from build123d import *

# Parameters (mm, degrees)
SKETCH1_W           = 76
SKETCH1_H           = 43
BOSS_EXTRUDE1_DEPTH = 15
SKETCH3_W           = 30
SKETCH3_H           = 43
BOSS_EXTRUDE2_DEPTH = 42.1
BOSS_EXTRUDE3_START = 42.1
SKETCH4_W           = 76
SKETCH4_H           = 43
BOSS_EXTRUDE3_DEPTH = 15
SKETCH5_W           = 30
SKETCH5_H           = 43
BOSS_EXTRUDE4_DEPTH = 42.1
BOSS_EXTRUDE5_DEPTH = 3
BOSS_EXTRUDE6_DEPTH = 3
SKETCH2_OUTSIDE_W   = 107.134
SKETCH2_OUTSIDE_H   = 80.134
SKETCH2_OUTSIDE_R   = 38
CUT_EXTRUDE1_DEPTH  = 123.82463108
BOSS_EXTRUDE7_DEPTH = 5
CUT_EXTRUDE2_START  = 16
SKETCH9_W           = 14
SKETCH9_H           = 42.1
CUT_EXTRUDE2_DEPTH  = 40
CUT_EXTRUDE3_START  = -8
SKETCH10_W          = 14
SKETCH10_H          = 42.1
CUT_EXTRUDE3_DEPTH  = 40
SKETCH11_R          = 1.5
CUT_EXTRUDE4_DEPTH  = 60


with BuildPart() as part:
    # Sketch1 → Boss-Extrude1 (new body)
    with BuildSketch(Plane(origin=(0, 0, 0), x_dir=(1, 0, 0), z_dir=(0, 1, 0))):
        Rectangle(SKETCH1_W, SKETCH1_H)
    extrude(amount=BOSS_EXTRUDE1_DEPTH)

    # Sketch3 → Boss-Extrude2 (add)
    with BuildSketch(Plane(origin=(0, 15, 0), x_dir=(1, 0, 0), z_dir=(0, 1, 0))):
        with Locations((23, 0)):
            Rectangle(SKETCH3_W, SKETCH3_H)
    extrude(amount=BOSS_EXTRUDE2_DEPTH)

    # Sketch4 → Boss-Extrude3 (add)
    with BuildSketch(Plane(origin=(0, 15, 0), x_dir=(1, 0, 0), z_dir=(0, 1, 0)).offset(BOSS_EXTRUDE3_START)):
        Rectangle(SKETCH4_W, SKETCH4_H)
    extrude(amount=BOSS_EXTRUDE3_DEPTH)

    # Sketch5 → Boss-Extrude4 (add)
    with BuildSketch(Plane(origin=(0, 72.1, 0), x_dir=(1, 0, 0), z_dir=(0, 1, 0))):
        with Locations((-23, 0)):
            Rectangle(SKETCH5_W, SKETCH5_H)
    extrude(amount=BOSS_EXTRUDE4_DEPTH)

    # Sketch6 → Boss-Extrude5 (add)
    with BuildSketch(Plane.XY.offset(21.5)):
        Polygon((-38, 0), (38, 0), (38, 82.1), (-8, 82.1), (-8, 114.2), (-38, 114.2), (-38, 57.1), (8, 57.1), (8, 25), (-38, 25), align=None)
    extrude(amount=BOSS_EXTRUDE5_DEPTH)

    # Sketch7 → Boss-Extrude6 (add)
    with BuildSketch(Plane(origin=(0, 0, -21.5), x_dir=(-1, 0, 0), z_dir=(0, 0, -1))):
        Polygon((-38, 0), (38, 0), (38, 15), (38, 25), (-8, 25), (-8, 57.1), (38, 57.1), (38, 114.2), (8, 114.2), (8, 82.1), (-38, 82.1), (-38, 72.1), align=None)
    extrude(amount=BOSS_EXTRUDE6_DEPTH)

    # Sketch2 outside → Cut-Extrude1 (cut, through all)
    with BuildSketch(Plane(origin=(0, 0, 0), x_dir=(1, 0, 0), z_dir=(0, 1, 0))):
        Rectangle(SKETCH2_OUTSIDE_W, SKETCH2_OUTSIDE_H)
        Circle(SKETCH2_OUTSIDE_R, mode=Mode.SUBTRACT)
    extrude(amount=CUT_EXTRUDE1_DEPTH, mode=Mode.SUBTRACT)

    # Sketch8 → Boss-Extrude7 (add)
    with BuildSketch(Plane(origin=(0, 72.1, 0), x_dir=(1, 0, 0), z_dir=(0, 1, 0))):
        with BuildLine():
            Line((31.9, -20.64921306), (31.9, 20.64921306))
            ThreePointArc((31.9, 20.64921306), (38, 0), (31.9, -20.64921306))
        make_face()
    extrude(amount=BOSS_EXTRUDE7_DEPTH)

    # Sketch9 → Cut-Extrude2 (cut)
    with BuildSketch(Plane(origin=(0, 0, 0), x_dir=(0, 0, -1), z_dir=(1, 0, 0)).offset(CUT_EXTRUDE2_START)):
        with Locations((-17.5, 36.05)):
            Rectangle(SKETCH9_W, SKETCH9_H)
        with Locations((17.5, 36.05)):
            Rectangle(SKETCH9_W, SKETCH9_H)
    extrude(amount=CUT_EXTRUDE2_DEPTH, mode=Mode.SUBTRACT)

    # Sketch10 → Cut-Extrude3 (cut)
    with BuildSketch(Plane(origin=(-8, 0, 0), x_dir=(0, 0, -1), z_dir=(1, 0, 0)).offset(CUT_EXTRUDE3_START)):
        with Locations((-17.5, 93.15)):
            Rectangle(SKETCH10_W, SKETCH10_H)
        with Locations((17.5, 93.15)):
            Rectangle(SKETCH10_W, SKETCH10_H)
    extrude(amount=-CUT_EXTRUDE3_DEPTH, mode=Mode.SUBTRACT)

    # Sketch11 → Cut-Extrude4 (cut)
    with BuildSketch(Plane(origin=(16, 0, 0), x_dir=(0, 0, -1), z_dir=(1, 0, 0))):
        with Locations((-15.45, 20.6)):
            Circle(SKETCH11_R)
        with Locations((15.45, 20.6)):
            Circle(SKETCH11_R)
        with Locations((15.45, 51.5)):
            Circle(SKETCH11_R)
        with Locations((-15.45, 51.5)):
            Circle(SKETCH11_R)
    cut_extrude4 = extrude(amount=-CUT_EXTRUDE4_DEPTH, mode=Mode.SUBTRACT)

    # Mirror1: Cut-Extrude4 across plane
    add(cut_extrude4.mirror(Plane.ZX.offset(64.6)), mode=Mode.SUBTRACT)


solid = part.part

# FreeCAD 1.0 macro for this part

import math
import FreeCAD as App
import Part
import Sketcher
Q = App.Units.Quantity

doc = App.newDocument("Part")
body = doc.addObject("PartDesign::Body", "Body")

# Sketch on XZ plane
sketch1 = doc.addObject("Sketcher::SketchObject", "Sketch")
body.addObject(sketch1)
sketch1.AttachmentSupport = (doc.XZ_Plane, [""])
sketch1.MapMode = "FlatFace"
sketch1.addGeometry([
    Part.LineSegment(App.Vector(-38, -22, 0), App.Vector(-38, 22, 0)),
    Part.LineSegment(App.Vector(-38, 22, 0), App.Vector(38, 22, 0)),
    Part.LineSegment(App.Vector(38, 22, 0), App.Vector(38, -22, 0)),
    Part.LineSegment(App.Vector(38, -22, 0), App.Vector(-38, -22, 0)),
], False)
sketch1.addConstraint([
    Sketcher.Constraint("Coincident", 0, 2, 1, 1),
    Sketcher.Constraint("Coincident", 1, 2, 2, 1),
    Sketcher.Constraint("Coincident", 2, 2, 3, 1),
    Sketcher.Constraint("Coincident", 3, 2, 0, 1),
    Sketcher.Constraint("Vertical", 0),
    Sketcher.Constraint("Horizontal", 1),
    Sketcher.Constraint("Vertical", 2),
    Sketcher.Constraint("Horizontal", 3),
    Sketcher.Constraint("Symmetric", 0, 2, 2, 2, -1, 1),
    Sketcher.Constraint("DistanceX", 1, 1, 1, 2, Q("76 mm")),
    Sketcher.Constraint("DistanceY", 0, 1, 0, 2, Q("43 mm")),
])
pad1 = doc.addObject("PartDesign::Pad", "Pad")
body.addObject(pad1)
pad1.Profile = sketch1
pad1.Length = 15
pad1.Reversed = True

# Sketch on XZ plane
sketch2 = doc.addObject("Sketcher::SketchObject", "Sketch001")
body.addObject(sketch2)
sketch2.AttachmentSupport = (doc.XZ_Plane, [""])
sketch2.MapMode = "FlatFace"
sketch2.AttachmentOffset = App.Placement(App.Vector(0, 0, -15), App.Rotation())
sketch2.addGeometry([
    Part.LineSegment(App.Vector(8, -22, 0), App.Vector(8, 22, 0)),
    Part.LineSegment(App.Vector(8, 22, 0), App.Vector(38, 22, 0)),
    Part.LineSegment(App.Vector(38, 22, 0), App.Vector(38, -22, 0)),
    Part.LineSegment(App.Vector(38, -22, 0), App.Vector(8, -22, 0)),
], False)
sketch2.addConstraint([
    Sketcher.Constraint("Coincident", 0, 2, 1, 1),
    Sketcher.Constraint("Coincident", 1, 2, 2, 1),
    Sketcher.Constraint("Coincident", 2, 2, 3, 1),
    Sketcher.Constraint("Coincident", 3, 2, 0, 1),
    Sketcher.Constraint("Vertical", 0),
    Sketcher.Constraint("Horizontal", 1),
    Sketcher.Constraint("Vertical", 2),
    Sketcher.Constraint("Horizontal", 3),
    Sketcher.Constraint("DistanceX", 1, 1, 1, 2, Q("30 mm")),
    Sketcher.Constraint("DistanceY", 0, 1, 0, 2, Q("43 mm")),
    Sketcher.Constraint("DistanceX", -1, 1, 0, 2, Q("8 mm")),
    Sketcher.Constraint("DistanceY", -1, 1, 0, 2, Q("21.5 mm")),
])
pad2 = doc.addObject("PartDesign::Pad", "Pad001")
body.addObject(pad2)
pad2.Profile = sketch2
pad2.Length = 42.1
pad2.Reversed = True

# Sketch on XZ plane
sketch3 = doc.addObject("Sketcher::SketchObject", "Sketch002")
body.addObject(sketch3)
sketch3.AttachmentSupport = (doc.XZ_Plane, [""])
sketch3.MapMode = "FlatFace"
sketch3.AttachmentOffset = App.Placement(App.Vector(0, 0, -57.1), App.Rotation())
sketch3.addGeometry([
    Part.LineSegment(App.Vector(-38, -22, 0), App.Vector(-38, 22, 0)),
    Part.LineSegment(App.Vector(-38, 22, 0), App.Vector(38, 22, 0)),
    Part.LineSegment(App.Vector(38, 22, 0), App.Vector(38, -22, 0)),
    Part.LineSegment(App.Vector(38, -22, 0), App.Vector(-38, -22, 0)),
], False)
sketch3.addConstraint([
    Sketcher.Constraint("Coincident", 0, 2, 1, 1),
    Sketcher.Constraint("Coincident", 1, 2, 2, 1),
    Sketcher.Constraint("Coincident", 2, 2, 3, 1),
    Sketcher.Constraint("Coincident", 3, 2, 0, 1),
    Sketcher.Constraint("Vertical", 0),
    Sketcher.Constraint("Horizontal", 1),
    Sketcher.Constraint("Vertical", 2),
    Sketcher.Constraint("Horizontal", 3),
    Sketcher.Constraint("Symmetric", 0, 2, 2, 2, -1, 1),
    Sketcher.Constraint("DistanceX", 1, 1, 1, 2, Q("76 mm")),
    Sketcher.Constraint("DistanceY", 0, 1, 0, 2, Q("43 mm")),
])
pad3 = doc.addObject("PartDesign::Pad", "Pad002")
body.addObject(pad3)
pad3.Profile = sketch3
pad3.Length = 15
pad3.Reversed = True

# Sketch on XZ plane
sketch4 = doc.addObject("Sketcher::SketchObject", "Sketch003")
body.addObject(sketch4)
sketch4.AttachmentSupport = (doc.XZ_Plane, [""])
sketch4.MapMode = "FlatFace"
sketch4.AttachmentOffset = App.Placement(App.Vector(0, 0, -72.1), App.Rotation())
sketch4.addGeometry([
    Part.LineSegment(App.Vector(-38, -22, 0), App.Vector(-38, 22, 0)),
    Part.LineSegment(App.Vector(-38, 22, 0), App.Vector(-8, 22, 0)),
    Part.LineSegment(App.Vector(-8, 22, 0), App.Vector(-8, -22, 0)),
    Part.LineSegment(App.Vector(-8, -22, 0), App.Vector(-38, -22, 0)),
], False)
sketch4.addConstraint([
    Sketcher.Constraint("Coincident", 0, 2, 1, 1),
    Sketcher.Constraint("Coincident", 1, 2, 2, 1),
    Sketcher.Constraint("Coincident", 2, 2, 3, 1),
    Sketcher.Constraint("Coincident", 3, 2, 0, 1),
    Sketcher.Constraint("Vertical", 0),
    Sketcher.Constraint("Horizontal", 1),
    Sketcher.Constraint("Vertical", 2),
    Sketcher.Constraint("Horizontal", 3),
    Sketcher.Constraint("DistanceX", 1, 1, 1, 2, Q("30 mm")),
    Sketcher.Constraint("DistanceY", 0, 1, 0, 2, Q("43 mm")),
    Sketcher.Constraint("DistanceX", 0, 2, -1, 1, Q("38 mm")),
    Sketcher.Constraint("DistanceY", -1, 1, 0, 2, Q("21.5 mm")),
])
pad4 = doc.addObject("PartDesign::Pad", "Pad003")
body.addObject(pad4)
pad4.Profile = sketch4
pad4.Length = 42.1
pad4.Reversed = True

# Sketch on XY plane
sketch5 = doc.addObject("Sketcher::SketchObject", "Sketch004")
body.addObject(sketch5)
sketch5.AttachmentSupport = (doc.XY_Plane, [""])
sketch5.MapMode = "FlatFace"
sketch5.AttachmentOffset = App.Placement(App.Vector(0, 0, 21.5), App.Rotation())
sketch5.addGeometry([
    Part.LineSegment(App.Vector(-38, 0, 0), App.Vector(38, 0, 0)),  # 0
    Part.LineSegment(App.Vector(38, 0, 0), App.Vector(38, 82, 0)),  # 1
    Part.LineSegment(App.Vector(38, 82, 0), App.Vector(-8, 82, 0)),  # 2
    Part.LineSegment(App.Vector(-8, 82, 0), App.Vector(-8, 114, 0)),  # 3
    Part.LineSegment(App.Vector(-8, 114, 0), App.Vector(-38, 114, 0)),  # 4
    Part.LineSegment(App.Vector(-38, 114, 0), App.Vector(-38, 57, 0)),  # 5
    Part.LineSegment(App.Vector(-38, 57, 0), App.Vector(8, 57, 0)),  # 6
    Part.LineSegment(App.Vector(8, 57, 0), App.Vector(8, 25, 0)),  # 7
    Part.LineSegment(App.Vector(8, 25, 0), App.Vector(-38, 25, 0)),  # 8
    Part.LineSegment(App.Vector(-38, 25, 0), App.Vector(-38, 0, 0)),  # 9
], False)
sketch5.addConstraint([
    Sketcher.Constraint("Coincident", 0, 2, 1, 1),
    Sketcher.Constraint("Coincident", 1, 2, 2, 1),
    Sketcher.Constraint("Coincident", 2, 2, 3, 1),
    Sketcher.Constraint("Coincident", 3, 2, 4, 1),
    Sketcher.Constraint("Coincident", 4, 2, 5, 1),
    Sketcher.Constraint("Coincident", 5, 2, 6, 1),
    Sketcher.Constraint("Coincident", 6, 2, 7, 1),
    Sketcher.Constraint("Coincident", 7, 2, 8, 1),
    Sketcher.Constraint("Coincident", 8, 2, 9, 1),
    Sketcher.Constraint("Coincident", 9, 2, 0, 1),
    Sketcher.Constraint("Horizontal", 0),
    Sketcher.Constraint("Vertical", 1),
    Sketcher.Constraint("Horizontal", 2),
    Sketcher.Constraint("Vertical", 3),
    Sketcher.Constraint("Horizontal", 4),
    Sketcher.Constraint("Vertical", 5),
    Sketcher.Constraint("Horizontal", 6),
    Sketcher.Constraint("Vertical", 7),
    Sketcher.Constraint("Horizontal", 8),
    Sketcher.Constraint("Vertical", 9),
    Sketcher.Constraint("Symmetric", 0, 2, 9, 2, -1, 1),
    Sketcher.Constraint("Vertical", 5, 2, 8, 2),
    Sketcher.Constraint("Equal", 2, 6),
    Sketcher.Constraint("Equal", 3, 7),
    Sketcher.Constraint("DistanceX", 0, 1, 0, 2, Q("76 mm")),
    Sketcher.Constraint("DistanceX", 2, 2, 2, 1, Q("46 mm")),
    Sketcher.Constraint("DistanceY", 9, 2, 9, 1, Q("25 mm")),
    Sketcher.Constraint("DistanceY", 1, 1, 1, 2, Q("82.1 mm")),
    Sketcher.Constraint("DistanceY", 3, 1, 3, 2, Q("32.1 mm")),
])
pad5 = doc.addObject("PartDesign::Pad", "Pad004")
body.addObject(pad5)
pad5.Profile = sketch5
pad5.Length = 3

# Sketch on XY plane
sketch6 = doc.addObject("Sketcher::SketchObject", "Sketch005")
body.addObject(sketch6)
sketch6.AttachmentSupport = (doc.XY_Plane, [""])
sketch6.MapMode = "FlatFace"
sketch6.AttachmentOffset = App.Placement(App.Vector(0, 0, -21.5), App.Rotation())
sketch6.addGeometry([
    Part.LineSegment(App.Vector(38, 0, 0), App.Vector(-38, 0, 0)),  # 0
    Part.LineSegment(App.Vector(-38, 0, 0), App.Vector(-38, 25, 0)),  # 1
    Part.LineSegment(App.Vector(-38, 25, 0), App.Vector(8, 25, 0)),  # 2
    Part.LineSegment(App.Vector(8, 25, 0), App.Vector(8, 57, 0)),  # 3
    Part.LineSegment(App.Vector(8, 57, 0), App.Vector(-38, 57, 0)),  # 4
    Part.LineSegment(App.Vector(-38, 57, 0), App.Vector(-38, 114, 0)),  # 5
    Part.LineSegment(App.Vector(-38, 114, 0), App.Vector(-8, 114, 0)),  # 6
    Part.LineSegment(App.Vector(-8, 114, 0), App.Vector(-8, 82, 0)),  # 7
    Part.LineSegment(App.Vector(-8, 82, 0), App.Vector(38, 82, 0)),  # 8
    Part.LineSegment(App.Vector(38, 82, 0), App.Vector(38, 0, 0)),  # 9
], False)
sketch6.addConstraint([
    Sketcher.Constraint("Coincident", 0, 2, 1, 1),
    Sketcher.Constraint("Coincident", 1, 2, 2, 1),
    Sketcher.Constraint("Coincident", 2, 2, 3, 1),
    Sketcher.Constraint("Coincident", 3, 2, 4, 1),
    Sketcher.Constraint("Coincident", 4, 2, 5, 1),
    Sketcher.Constraint("Coincident", 5, 2, 6, 1),
    Sketcher.Constraint("Coincident", 6, 2, 7, 1),
    Sketcher.Constraint("Coincident", 7, 2, 8, 1),
    Sketcher.Constraint("Coincident", 8, 2, 9, 1),
    Sketcher.Constraint("Coincident", 9, 2, 0, 1),
    Sketcher.Constraint("Horizontal", 0),
    Sketcher.Constraint("Vertical", 1),
    Sketcher.Constraint("Horizontal", 2),
    Sketcher.Constraint("Vertical", 3),
    Sketcher.Constraint("Horizontal", 4),
    Sketcher.Constraint("Vertical", 5),
    Sketcher.Constraint("Horizontal", 6),
    Sketcher.Constraint("Vertical", 7),
    Sketcher.Constraint("Horizontal", 8),
    Sketcher.Constraint("Vertical", 9),
    Sketcher.Constraint("Symmetric", 0, 2, 9, 2, -1, 1),
    Sketcher.Constraint("Vertical", 1, 2, 4, 2),
    Sketcher.Constraint("Equal", 4, 8),
    Sketcher.Constraint("Equal", 3, 7),
    Sketcher.Constraint("DistanceX", 0, 2, 0, 1, Q("76 mm")),
    Sketcher.Constraint("DistanceX", 2, 1, 2, 2, Q("46 mm")),
    Sketcher.Constraint("DistanceY", 1, 1, 1, 2, Q("25 mm")),
    Sketcher.Constraint("DistanceY", 3, 1, 3, 2, Q("32.1 mm")),
    Sketcher.Constraint("DistanceY", 5, 1, 5, 2, Q("57.1 mm")),
])
pad6 = doc.addObject("PartDesign::Pad", "Pad005")
body.addObject(pad6)
pad6.Profile = sketch6
pad6.Length = 3
pad6.Reversed = True

# Sketch on XZ plane
sketch7 = doc.addObject("Sketcher::SketchObject", "Sketch006")
body.addObject(sketch7)
sketch7.AttachmentSupport = (doc.XZ_Plane, [""])
sketch7.MapMode = "FlatFace"
sketch7.addGeometry([
    Part.LineSegment(App.Vector(-54, -40, 0), App.Vector(-54, 40, 0)),  # 0
    Part.LineSegment(App.Vector(-54, 40, 0), App.Vector(54, 40, 0)),  # 1
    Part.LineSegment(App.Vector(54, 40, 0), App.Vector(54, -40, 0)),  # 2
    Part.LineSegment(App.Vector(54, -40, 0), App.Vector(-54, -40, 0)),  # 3
    Part.Circle(App.Vector(0, 0, 0), App.Vector(0, 0, 1), 38),  # 4
], False)
sketch7.addConstraint([
    Sketcher.Constraint("Coincident", 0, 2, 1, 1),
    Sketcher.Constraint("Coincident", 1, 2, 2, 1),
    Sketcher.Constraint("Coincident", 2, 2, 3, 1),
    Sketcher.Constraint("Coincident", 3, 2, 0, 1),
    Sketcher.Constraint("Vertical", 0),
    Sketcher.Constraint("Horizontal", 1),
    Sketcher.Constraint("Vertical", 2),
    Sketcher.Constraint("Horizontal", 3),
    Sketcher.Constraint("Coincident", 4, 3, -1, 1),
    Sketcher.Constraint("Symmetric", 0, 2, 2, 2, -1, 1),
    Sketcher.Constraint("Diameter", 4, Q("76 mm")),
    Sketcher.Constraint("DistanceX", 1, 1, 1, 2, Q("107.134 mm")),
    Sketcher.Constraint("DistanceY", 0, 1, 0, 2, Q("80.134 mm")),
])
pocket1 = doc.addObject("PartDesign::Pocket", "Pocket")
body.addObject(pocket1)
pocket1.Profile = sketch7
pocket1.Type = "ThroughAll"

# Sketch on XZ plane
sketch8 = doc.addObject("Sketcher::SketchObject", "Sketch007")
body.addObject(sketch8)
sketch8.AttachmentSupport = (doc.XZ_Plane, [""])
sketch8.MapMode = "FlatFace"
sketch8.AttachmentOffset = App.Placement(App.Vector(0, 0, -72.1), App.Rotation())
sketch8.addGeometry([
    Part.LineSegment(App.Vector(32, -21, 0), App.Vector(32, 21, 0)),
    Part.ArcOfCircle(Part.Circle(App.Vector(0, 0, 0), App.Vector(0, 0, 1), 38), math.radians(-33), math.radians(33)),
], False)
sketch8.addConstraint([
    Sketcher.Constraint("Coincident", 0, 1, 1, 1),
    Sketcher.Constraint("Coincident", 1, 2, 0, 2),
    Sketcher.Constraint("Vertical", 0),
    Sketcher.Constraint("Coincident", 1, 3, -1, 1),
    Sketcher.Constraint("Radius", 1, Q("38 mm")),
    Sketcher.Constraint("DistanceX", -1, 1, 0, 1, Q("31.9 mm")),
])
pad7 = doc.addObject("PartDesign::Pad", "Pad006")
body.addObject(pad7)
pad7.Profile = sketch8
pad7.Length = 5
pad7.Reversed = True

# Sketch on YZ plane
sketch9 = doc.addObject("Sketcher::SketchObject", "Sketch008")
body.addObject(sketch9)
sketch9.AttachmentSupport = (doc.YZ_Plane, [""])
sketch9.MapMode = "FlatFace"
sketch9.AttachmentOffset = App.Placement(App.Vector(0, 0, 16), App.Rotation())
sketch9.addGeometry([
    Part.LineSegment(App.Vector(57, 24, 0), App.Vector(15, 24, 0)),  # 0
    Part.LineSegment(App.Vector(15, 24, 0), App.Vector(15, 10, 0)),  # 1
    Part.LineSegment(App.Vector(15, 10, 0), App.Vector(57, 10, 0)),  # 2
    Part.LineSegment(App.Vector(57, 10, 0), App.Vector(57, 24, 0)),  # 3
    Part.LineSegment(App.Vector(57, -10, 0), App.Vector(15, -10, 0)),  # 4
    Part.LineSegment(App.Vector(15, -10, 0), App.Vector(15, -24, 0)),  # 5
    Part.LineSegment(App.Vector(15, -24, 0), App.Vector(57, -24, 0)),  # 6
    Part.LineSegment(App.Vector(57, -24, 0), App.Vector(57, -10, 0)),  # 7
], False)
sketch9.addConstraint([
    Sketcher.Constraint("Coincident", 0, 2, 1, 1),
    Sketcher.Constraint("Coincident", 1, 2, 2, 1),
    Sketcher.Constraint("Coincident", 2, 2, 3, 1),
    Sketcher.Constraint("Coincident", 3, 2, 0, 1),
    Sketcher.Constraint("Coincident", 4, 2, 5, 1),
    Sketcher.Constraint("Coincident", 5, 2, 6, 1),
    Sketcher.Constraint("Coincident", 6, 2, 7, 1),
    Sketcher.Constraint("Coincident", 7, 2, 4, 1),
    Sketcher.Constraint("Horizontal", 0),
    Sketcher.Constraint("Vertical", 1),
    Sketcher.Constraint("Horizontal", 2),
    Sketcher.Constraint("Vertical", 3),
    Sketcher.Constraint("Horizontal", 4),
    Sketcher.Constraint("Vertical", 5),
    Sketcher.Constraint("Horizontal", 6),
    Sketcher.Constraint("Vertical", 7),
    Sketcher.Constraint("Symmetric", 1, 2, 4, 2, -1),
    Sketcher.Constraint("Symmetric", 3, 2, 6, 2, -1),
    Sketcher.Constraint("DistanceY", 1, 2, 1, 1, Q("14 mm")),
    Sketcher.Constraint("DistanceX", 0, 2, 0, 1, Q("42.1 mm")),
    Sketcher.Constraint("DistanceX", -1, 1, 0, 2, Q("15 mm")),
    Sketcher.Constraint("DistanceY", 4, 2, 1, 2, Q("21 mm")),
])
pocket2 = doc.addObject("PartDesign::Pocket", "Pocket001")
body.addObject(pocket2)
pocket2.Profile = sketch9
pocket2.Length = 40
pocket2.Reversed = True

# Sketch on YZ plane
sketch10 = doc.addObject("Sketcher::SketchObject", "Sketch009")
body.addObject(sketch10)
sketch10.AttachmentSupport = (doc.YZ_Plane, [""])
sketch10.MapMode = "FlatFace"
sketch10.AttachmentOffset = App.Placement(App.Vector(0, 0, -16), App.Rotation())
sketch10.addGeometry([
    Part.LineSegment(App.Vector(114, 24, 0), App.Vector(72, 24, 0)),  # 0
    Part.LineSegment(App.Vector(72, 24, 0), App.Vector(72, 10, 0)),  # 1
    Part.LineSegment(App.Vector(72, 10, 0), App.Vector(114, 10, 0)),  # 2
    Part.LineSegment(App.Vector(114, 10, 0), App.Vector(114, 24, 0)),  # 3
    Part.LineSegment(App.Vector(114, -10, 0), App.Vector(72, -10, 0)),  # 4
    Part.LineSegment(App.Vector(72, -10, 0), App.Vector(72, -24, 0)),  # 5
    Part.LineSegment(App.Vector(72, -24, 0), App.Vector(114, -24, 0)),  # 6
    Part.LineSegment(App.Vector(114, -24, 0), App.Vector(114, -10, 0)),  # 7
], False)
sketch10.addConstraint([
    Sketcher.Constraint("Coincident", 0, 2, 1, 1),
    Sketcher.Constraint("Coincident", 1, 2, 2, 1),
    Sketcher.Constraint("Coincident", 2, 2, 3, 1),
    Sketcher.Constraint("Coincident", 3, 2, 0, 1),
    Sketcher.Constraint("Coincident", 4, 2, 5, 1),
    Sketcher.Constraint("Coincident", 5, 2, 6, 1),
    Sketcher.Constraint("Coincident", 6, 2, 7, 1),
    Sketcher.Constraint("Coincident", 7, 2, 4, 1),
    Sketcher.Constraint("Horizontal", 0),
    Sketcher.Constraint("Vertical", 1),
    Sketcher.Constraint("Horizontal", 2),
    Sketcher.Constraint("Vertical", 3),
    Sketcher.Constraint("Horizontal", 4),
    Sketcher.Constraint("Vertical", 5),
    Sketcher.Constraint("Horizontal", 6),
    Sketcher.Constraint("Vertical", 7),
    Sketcher.Constraint("Symmetric", 1, 2, 4, 2, -1),
    Sketcher.Constraint("Symmetric", 3, 2, 6, 2, -1),
    Sketcher.Constraint("DistanceY", 1, 2, 1, 1, Q("14 mm")),
    Sketcher.Constraint("DistanceX", 0, 2, 0, 1, Q("42.1 mm")),
    Sketcher.Constraint("DistanceY", 4, 2, 1, 2, Q("21 mm")),
    Sketcher.Constraint("DistanceX", -1, 1, 0, 2, Q("72.1 mm")),
])
pocket3 = doc.addObject("PartDesign::Pocket", "Pocket002")
body.addObject(pocket3)
pocket3.Profile = sketch10
pocket3.Length = 40

# Sketch on YZ plane
sketch11 = doc.addObject("Sketcher::SketchObject", "Sketch010")
body.addObject(sketch11)
sketch11.AttachmentSupport = (doc.YZ_Plane, [""])
sketch11.MapMode = "FlatFace"
sketch11.AttachmentOffset = App.Placement(App.Vector(0, 0, 16), App.Rotation())
sketch11.addGeometry([
    Part.Circle(App.Vector(20.6, 15.4, 0), App.Vector(0, 0, 1), 1.5),
    Part.Circle(App.Vector(20.6, -15.4, 0), App.Vector(0, 0, 1), 1.5),
    Part.Circle(App.Vector(51.5, -15.4, 0), App.Vector(0, 0, 1), 1.5),
    Part.Circle(App.Vector(51.5, 15.4, 0), App.Vector(0, 0, 1), 1.5),
], False)
sketch11.addConstraint([
    Sketcher.Constraint("Equal", 0, 1),
    Sketcher.Constraint("Equal", 1, 2),
    Sketcher.Constraint("Equal", 2, 3),
    Sketcher.Constraint("Symmetric", 0, 3, 1, 3, -1),
    Sketcher.Constraint("Symmetric", 2, 3, 3, 3, -1),
    Sketcher.Constraint("Horizontal", 1, 3, 2, 3),
    Sketcher.Constraint("Diameter", 0, Q("3 mm")),
    Sketcher.Constraint("DistanceX", -1, 1, 0, 3, Q("20.6 mm")),
    Sketcher.Constraint("DistanceX", -1, 1, 2, 3, Q("51.5 mm")),
    Sketcher.Constraint("DistanceY", 1, 3, 0, 3, Q("30.9 mm")),
])
pocket4 = doc.addObject("PartDesign::Pocket", "Pocket003")
body.addObject(pocket4)
pocket4.Profile = sketch11
pocket4.Length = 60
doc.recompute()

datumplane = doc.addObject("PartDesign::Plane", "DatumPlane")
body.addObject(datumplane)
datumplane.AttachmentSupport = (doc.XZ_Plane, [""])
datumplane.MapMode = "FlatFace"
datumplane.AttachmentOffset = App.Placement(App.Vector(0, 0, -64.6), App.Rotation())
mirrored = doc.addObject("PartDesign::Mirrored", "Mirrored")
body.addObject(mirrored)
mirrored.Originals = [pocket4]
mirrored.MirrorPlane = (datumplane, [""])
body.Tip = mirrored

doc.recompute()
